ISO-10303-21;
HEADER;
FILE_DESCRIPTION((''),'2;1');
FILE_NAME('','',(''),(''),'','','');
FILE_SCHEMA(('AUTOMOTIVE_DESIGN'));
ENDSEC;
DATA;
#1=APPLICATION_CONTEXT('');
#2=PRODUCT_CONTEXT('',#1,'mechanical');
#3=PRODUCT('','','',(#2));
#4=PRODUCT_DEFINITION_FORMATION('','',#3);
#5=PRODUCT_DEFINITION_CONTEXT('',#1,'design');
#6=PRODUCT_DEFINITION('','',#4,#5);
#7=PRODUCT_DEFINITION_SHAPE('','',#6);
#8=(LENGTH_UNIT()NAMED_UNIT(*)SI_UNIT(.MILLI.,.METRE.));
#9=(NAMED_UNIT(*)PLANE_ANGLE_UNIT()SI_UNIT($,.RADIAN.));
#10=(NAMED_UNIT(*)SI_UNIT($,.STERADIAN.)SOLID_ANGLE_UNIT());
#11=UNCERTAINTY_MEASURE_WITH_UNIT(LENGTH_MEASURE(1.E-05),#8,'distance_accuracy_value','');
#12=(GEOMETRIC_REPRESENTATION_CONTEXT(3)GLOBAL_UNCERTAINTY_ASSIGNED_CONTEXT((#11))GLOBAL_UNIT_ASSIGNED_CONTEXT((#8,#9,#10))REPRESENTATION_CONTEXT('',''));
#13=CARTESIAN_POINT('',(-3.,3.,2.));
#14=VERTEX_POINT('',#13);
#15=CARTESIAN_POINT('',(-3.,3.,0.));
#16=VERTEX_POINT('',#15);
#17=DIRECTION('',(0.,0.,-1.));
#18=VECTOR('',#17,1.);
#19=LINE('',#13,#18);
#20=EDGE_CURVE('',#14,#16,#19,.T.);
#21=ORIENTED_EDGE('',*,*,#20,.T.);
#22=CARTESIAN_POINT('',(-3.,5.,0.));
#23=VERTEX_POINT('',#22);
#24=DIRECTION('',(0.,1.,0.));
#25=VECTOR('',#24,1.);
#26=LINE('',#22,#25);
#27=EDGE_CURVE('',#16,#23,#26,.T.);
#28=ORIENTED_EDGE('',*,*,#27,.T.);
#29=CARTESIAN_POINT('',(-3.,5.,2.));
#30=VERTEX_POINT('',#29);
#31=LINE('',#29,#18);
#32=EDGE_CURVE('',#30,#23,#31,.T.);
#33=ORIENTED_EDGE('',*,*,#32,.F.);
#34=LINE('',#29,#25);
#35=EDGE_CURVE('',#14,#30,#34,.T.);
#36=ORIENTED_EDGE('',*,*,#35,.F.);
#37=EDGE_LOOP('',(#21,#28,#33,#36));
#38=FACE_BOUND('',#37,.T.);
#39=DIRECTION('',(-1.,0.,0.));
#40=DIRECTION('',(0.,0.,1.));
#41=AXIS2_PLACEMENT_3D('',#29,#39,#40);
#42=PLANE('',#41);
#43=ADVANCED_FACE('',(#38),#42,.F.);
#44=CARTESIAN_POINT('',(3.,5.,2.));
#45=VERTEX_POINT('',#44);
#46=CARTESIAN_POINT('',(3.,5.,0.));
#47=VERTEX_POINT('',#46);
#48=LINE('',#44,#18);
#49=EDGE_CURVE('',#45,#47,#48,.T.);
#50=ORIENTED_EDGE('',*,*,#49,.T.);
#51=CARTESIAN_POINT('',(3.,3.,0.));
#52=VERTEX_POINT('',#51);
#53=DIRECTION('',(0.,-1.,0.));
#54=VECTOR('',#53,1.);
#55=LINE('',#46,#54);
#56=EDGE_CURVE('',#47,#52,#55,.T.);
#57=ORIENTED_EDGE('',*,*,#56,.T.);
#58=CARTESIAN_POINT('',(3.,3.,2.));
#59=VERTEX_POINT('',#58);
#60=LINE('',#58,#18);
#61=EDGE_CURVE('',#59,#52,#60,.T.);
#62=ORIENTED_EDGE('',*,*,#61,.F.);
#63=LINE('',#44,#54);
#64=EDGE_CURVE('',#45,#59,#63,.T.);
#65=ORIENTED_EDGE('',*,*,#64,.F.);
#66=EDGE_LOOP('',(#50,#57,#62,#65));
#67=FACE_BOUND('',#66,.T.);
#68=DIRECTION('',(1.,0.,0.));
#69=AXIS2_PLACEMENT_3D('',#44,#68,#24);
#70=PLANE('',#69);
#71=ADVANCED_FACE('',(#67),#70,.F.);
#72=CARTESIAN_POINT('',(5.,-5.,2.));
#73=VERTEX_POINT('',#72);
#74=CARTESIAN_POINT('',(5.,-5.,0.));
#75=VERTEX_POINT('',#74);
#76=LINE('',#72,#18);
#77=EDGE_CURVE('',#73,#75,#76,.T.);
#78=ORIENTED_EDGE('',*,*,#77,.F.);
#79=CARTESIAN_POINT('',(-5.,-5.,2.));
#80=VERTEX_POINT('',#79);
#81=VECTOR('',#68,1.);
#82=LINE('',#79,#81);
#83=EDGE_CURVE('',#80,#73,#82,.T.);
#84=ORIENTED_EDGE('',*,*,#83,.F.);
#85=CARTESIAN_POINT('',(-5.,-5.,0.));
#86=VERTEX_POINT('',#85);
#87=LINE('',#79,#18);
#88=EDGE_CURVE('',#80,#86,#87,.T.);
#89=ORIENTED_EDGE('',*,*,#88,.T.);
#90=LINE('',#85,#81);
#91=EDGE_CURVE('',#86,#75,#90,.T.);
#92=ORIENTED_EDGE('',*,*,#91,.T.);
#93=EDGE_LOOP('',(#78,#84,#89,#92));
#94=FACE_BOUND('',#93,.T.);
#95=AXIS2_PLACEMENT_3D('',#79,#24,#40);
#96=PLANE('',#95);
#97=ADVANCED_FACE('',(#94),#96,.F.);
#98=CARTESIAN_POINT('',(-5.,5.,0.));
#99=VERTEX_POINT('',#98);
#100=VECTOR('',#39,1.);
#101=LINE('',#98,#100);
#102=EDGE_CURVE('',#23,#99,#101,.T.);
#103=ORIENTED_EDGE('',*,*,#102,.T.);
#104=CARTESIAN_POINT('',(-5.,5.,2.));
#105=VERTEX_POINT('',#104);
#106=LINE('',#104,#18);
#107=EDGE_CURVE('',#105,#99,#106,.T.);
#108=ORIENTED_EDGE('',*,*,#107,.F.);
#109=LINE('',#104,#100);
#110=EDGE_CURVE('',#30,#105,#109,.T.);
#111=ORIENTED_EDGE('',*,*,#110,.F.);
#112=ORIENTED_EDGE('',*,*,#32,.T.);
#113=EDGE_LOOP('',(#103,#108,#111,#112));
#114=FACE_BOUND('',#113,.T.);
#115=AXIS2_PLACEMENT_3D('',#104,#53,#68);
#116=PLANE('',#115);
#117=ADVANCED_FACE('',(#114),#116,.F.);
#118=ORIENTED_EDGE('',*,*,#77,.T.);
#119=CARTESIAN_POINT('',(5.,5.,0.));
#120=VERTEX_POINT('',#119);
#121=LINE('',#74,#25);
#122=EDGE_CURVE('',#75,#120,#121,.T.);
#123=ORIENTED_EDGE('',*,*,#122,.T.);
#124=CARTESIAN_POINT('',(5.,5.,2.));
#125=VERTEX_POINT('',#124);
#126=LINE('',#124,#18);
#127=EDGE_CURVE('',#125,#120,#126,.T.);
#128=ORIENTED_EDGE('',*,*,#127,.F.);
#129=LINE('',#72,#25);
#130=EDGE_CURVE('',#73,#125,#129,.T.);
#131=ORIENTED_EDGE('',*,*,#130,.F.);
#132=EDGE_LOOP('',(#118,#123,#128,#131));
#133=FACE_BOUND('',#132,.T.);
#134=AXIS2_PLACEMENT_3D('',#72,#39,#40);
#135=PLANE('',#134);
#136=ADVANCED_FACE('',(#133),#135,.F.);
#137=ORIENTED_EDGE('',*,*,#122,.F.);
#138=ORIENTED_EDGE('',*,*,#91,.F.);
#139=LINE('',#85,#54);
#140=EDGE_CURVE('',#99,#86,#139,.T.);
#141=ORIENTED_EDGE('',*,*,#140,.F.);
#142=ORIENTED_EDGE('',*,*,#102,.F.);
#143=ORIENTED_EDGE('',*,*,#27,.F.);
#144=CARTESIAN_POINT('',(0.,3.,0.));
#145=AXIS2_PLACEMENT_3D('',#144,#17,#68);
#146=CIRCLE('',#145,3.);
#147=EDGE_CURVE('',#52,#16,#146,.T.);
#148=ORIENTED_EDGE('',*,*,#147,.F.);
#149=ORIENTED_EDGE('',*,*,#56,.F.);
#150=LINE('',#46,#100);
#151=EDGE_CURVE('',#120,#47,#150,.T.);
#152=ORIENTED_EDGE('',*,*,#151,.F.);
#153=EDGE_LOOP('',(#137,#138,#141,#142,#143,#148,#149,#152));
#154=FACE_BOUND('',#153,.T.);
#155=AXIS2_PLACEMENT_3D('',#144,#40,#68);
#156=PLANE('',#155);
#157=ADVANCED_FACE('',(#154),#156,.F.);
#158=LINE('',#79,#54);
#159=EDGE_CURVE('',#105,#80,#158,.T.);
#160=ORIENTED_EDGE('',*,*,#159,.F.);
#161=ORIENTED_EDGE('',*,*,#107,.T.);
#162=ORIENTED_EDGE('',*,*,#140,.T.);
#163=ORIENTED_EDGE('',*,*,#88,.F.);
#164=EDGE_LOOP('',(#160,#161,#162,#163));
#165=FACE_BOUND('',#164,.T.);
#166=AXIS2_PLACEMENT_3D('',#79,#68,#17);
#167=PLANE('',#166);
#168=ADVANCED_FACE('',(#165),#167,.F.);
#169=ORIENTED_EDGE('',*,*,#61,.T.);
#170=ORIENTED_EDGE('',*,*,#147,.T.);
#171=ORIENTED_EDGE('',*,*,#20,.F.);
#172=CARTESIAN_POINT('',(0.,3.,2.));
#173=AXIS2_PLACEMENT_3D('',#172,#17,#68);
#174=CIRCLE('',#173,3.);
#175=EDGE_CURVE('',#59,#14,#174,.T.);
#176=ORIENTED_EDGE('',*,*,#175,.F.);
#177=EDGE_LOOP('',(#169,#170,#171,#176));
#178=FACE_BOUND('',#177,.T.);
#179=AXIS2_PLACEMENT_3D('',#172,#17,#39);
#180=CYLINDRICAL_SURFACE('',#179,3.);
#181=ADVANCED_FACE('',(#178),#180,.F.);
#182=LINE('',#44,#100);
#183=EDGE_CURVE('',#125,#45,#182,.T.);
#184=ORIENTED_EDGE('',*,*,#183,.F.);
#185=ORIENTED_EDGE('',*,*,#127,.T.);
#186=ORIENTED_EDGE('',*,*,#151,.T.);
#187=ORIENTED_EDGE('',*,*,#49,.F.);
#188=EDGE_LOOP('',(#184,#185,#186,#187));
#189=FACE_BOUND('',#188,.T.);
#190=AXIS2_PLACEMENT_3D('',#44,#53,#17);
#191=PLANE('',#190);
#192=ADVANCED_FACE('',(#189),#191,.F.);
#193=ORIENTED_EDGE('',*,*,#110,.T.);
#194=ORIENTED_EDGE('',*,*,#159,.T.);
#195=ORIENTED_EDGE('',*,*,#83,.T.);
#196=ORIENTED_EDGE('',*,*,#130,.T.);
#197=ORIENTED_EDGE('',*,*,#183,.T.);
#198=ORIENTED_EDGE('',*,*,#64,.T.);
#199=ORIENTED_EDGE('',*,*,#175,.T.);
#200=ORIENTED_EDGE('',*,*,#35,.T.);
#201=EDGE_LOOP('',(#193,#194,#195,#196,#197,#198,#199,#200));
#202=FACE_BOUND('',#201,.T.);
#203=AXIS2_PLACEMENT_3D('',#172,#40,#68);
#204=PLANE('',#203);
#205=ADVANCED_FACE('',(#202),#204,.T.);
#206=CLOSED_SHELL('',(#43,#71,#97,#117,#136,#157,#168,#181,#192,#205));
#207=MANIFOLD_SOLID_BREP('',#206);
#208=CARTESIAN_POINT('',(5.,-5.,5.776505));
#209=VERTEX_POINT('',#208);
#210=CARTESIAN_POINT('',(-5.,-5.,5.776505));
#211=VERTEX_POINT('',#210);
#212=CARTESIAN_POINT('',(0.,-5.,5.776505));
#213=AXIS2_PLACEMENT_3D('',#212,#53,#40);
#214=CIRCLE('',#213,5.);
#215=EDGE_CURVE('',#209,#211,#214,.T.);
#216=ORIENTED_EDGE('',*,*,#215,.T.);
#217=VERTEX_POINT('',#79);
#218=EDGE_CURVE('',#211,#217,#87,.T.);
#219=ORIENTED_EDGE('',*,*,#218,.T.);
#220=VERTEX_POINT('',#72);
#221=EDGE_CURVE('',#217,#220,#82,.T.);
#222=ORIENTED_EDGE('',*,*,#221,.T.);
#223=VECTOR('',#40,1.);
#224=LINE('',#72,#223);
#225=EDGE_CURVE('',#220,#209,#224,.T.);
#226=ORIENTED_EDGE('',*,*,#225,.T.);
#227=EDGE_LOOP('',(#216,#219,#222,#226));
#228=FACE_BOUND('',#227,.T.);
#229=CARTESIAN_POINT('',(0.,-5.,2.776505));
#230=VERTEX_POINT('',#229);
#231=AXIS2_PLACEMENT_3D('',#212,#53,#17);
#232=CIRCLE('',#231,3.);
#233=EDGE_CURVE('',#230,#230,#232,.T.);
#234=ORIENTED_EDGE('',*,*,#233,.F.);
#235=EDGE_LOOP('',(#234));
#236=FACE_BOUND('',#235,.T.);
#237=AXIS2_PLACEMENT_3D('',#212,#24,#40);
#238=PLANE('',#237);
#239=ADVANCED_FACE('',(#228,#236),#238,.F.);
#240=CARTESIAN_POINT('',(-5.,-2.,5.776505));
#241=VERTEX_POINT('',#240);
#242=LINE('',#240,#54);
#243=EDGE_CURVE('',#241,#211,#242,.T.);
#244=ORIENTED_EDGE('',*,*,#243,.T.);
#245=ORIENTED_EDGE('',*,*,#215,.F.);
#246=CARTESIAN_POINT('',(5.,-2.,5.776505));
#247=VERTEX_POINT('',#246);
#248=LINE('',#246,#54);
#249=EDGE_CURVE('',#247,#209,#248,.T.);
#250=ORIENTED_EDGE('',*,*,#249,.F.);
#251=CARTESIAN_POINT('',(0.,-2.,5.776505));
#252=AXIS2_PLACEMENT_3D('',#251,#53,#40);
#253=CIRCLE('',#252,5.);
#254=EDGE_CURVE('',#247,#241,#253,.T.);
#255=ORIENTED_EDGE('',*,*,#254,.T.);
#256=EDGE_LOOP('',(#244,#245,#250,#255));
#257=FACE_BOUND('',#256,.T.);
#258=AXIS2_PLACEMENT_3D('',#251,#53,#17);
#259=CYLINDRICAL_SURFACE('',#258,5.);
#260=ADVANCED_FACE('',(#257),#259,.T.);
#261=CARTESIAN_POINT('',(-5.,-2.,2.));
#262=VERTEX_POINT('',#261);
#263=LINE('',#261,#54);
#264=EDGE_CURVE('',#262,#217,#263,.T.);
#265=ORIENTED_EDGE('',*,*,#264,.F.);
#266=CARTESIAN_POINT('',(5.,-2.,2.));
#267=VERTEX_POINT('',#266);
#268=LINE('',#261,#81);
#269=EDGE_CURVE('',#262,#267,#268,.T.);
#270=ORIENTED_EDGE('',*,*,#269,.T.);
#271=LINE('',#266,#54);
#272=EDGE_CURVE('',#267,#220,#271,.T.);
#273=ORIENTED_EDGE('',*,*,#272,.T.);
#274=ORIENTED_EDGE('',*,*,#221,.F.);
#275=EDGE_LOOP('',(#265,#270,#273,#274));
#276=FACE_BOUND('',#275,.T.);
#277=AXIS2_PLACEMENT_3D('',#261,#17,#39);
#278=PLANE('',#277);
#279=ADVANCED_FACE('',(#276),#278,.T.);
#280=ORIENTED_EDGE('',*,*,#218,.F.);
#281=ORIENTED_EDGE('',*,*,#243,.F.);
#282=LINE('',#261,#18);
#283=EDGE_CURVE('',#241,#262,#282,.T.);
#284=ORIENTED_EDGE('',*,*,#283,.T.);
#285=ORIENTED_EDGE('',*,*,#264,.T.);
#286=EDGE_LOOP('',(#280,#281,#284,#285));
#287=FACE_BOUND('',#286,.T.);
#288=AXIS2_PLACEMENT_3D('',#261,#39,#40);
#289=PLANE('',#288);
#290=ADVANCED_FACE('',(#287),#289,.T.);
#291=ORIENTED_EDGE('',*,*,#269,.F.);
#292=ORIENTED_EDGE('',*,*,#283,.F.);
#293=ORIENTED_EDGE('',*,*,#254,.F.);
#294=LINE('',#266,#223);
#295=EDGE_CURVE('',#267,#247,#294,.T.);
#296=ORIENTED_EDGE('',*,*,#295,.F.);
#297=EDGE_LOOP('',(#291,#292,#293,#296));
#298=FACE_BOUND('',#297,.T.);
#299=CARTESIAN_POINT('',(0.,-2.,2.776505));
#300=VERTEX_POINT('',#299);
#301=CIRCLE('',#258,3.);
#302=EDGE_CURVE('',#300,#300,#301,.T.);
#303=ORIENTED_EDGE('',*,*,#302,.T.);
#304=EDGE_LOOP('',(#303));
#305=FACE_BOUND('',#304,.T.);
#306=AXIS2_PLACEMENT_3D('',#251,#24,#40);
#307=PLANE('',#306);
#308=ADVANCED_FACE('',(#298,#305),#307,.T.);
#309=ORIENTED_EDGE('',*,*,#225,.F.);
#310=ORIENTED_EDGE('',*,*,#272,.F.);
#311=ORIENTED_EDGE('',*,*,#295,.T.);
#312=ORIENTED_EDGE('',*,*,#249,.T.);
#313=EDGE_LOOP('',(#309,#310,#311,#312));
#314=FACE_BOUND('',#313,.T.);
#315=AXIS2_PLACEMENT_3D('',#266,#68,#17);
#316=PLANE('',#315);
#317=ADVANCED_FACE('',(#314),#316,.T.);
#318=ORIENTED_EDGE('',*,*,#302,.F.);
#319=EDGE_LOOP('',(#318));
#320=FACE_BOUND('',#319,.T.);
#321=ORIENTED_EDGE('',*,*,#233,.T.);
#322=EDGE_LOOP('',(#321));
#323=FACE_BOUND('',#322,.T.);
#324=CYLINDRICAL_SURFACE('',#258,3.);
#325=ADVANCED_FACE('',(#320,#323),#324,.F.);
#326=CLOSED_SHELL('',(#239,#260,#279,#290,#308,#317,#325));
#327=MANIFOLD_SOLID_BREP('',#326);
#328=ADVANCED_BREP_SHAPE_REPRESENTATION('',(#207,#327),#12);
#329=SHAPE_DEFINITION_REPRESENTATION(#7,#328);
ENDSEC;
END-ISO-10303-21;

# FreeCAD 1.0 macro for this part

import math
import FreeCAD as App
import Part
import Sketcher

V = App.Vector

doc = App.newDocument("Part")
body = doc.addObject("PartDesign::Body", "Body")

sketch1 = doc.addObject("Sketcher::SketchObject", "Sketch")
body.addObject(sketch1)
sketch1.AttachmentSupport = (doc.XY_Plane, [""])
sketch1.MapMode = "FlatFace"
sketch1.addGeometry([
    Part.LineSegment(V(-5, -5, 0), V(5, -5, 0)),
    Part.LineSegment(V(5, -5, 0), V(5, 5, 0)),
    Part.LineSegment(V(5, 5, 0), V(3, 5, 0)),
    Part.LineSegment(V(3, 5, 0), V(3, 3, 0)),
    Part.ArcOfCircle(Part.Circle(V(0, 3, 0), V(0, 0, 1), 3), math.radians(180), math.radians(360)),
    Part.LineSegment(V(-3, 3, 0), V(-3, 5, 0)),
    Part.LineSegment(V(-3, 5, 0), V(-5, 5, 0)),
    Part.LineSegment(V(-5, 5, 0), V(-5, -5, 0)),
], False)
sketch1.addConstraint([
    Sketcher.Constraint("Coincident", 0, 2, 1, 1),
    Sketcher.Constraint("Coincident", 1, 2, 2, 1),
    Sketcher.Constraint("Coincident", 2, 2, 3, 1),
    Sketcher.Constraint("Tangent", 3, 2, 4, 2),
    Sketcher.Constraint("Tangent", 4, 1, 5, 1),
    Sketcher.Constraint("Coincident", 5, 2, 6, 1),
    Sketcher.Constraint("Coincident", 6, 2, 7, 1),
    Sketcher.Constraint("Coincident", 7, 2, 0, 1),
    Sketcher.Constraint("Horizontal", 0),
    Sketcher.Constraint("Vertical", 1),
    Sketcher.Constraint("Horizontal", 2),
    Sketcher.Constraint("Vertical", 3),
    Sketcher.Constraint("Vertical", 5),
    Sketcher.Constraint("Horizontal", 6),
    Sketcher.Constraint("Vertical", 7),
    Sketcher.Constraint("Symmetric", 0, 2, 6, 2, -1, 1),
    Sketcher.Constraint("Symmetric", 2, 2, 5, 2, -2),
    Sketcher.Constraint("Equal", 0, 1),
    Sketcher.Constraint("Equal", 6, 3),
    Sketcher.Constraint("Radius", 4, 3.0),
    Sketcher.Constraint("DistanceX", 0, 1, 0, 2, 10.0),
])
pad1 = doc.addObject("PartDesign::Pad", "Pad")
body.addObject(pad1)
pad1.Profile = sketch1
pad1.Length = 2
body2 = doc.addObject("PartDesign::Body", "Body001")

sketch2 = doc.addObject("Sketcher::SketchObject", "Sketch001")
body2.addObject(sketch2)
sketch2.AttachmentSupport = (doc.getObject("XZ_Plane001"), [""])
sketch2.MapMode = "FlatFace"
sketch2.AttachmentOffset = App.Placement(V(0, 0, 5), App.Rotation())
sketch2.addGeometry([
    Part.LineSegment(V(-5, 2, 0), V(5, 2, 0)),
    Part.LineSegment(V(5, 2, 0), V(5, 5.8, 0)),
    Part.ArcOfCircle(Part.Circle(V(0, 5.8, 0), V(0, 0, 1), 5), math.radians(0), math.radians(180)),
    Part.LineSegment(V(-5, 5.8, 0), V(-5, 2, 0)),
    Part.Circle(V(0, 5.8, 0), V(0, 0, 1), 3),
], False)
sketch2.addConstraint([
    Sketcher.Constraint("Coincident", 0, 2, 1, 1),
    Sketcher.Constraint("Tangent", 1, 2, 2, 1),
    Sketcher.Constraint("Tangent", 2, 2, 3, 1),
    Sketcher.Constraint("Coincident", 3, 2, 0, 1),
    Sketcher.Constraint("Horizontal", 0),
    Sketcher.Constraint("Vertical", 1),
    Sketcher.Constraint("Vertical", 3),
    Sketcher.Constraint("Coincident", 4, 3, 2, 3),
    Sketcher.Constraint("PointOnObject", 2, 3, -2),
    Sketcher.Constraint("Diameter", 4, 6.0),
    Sketcher.Constraint("Radius", 2, 5.0),
    Sketcher.Constraint("DistanceY", -1, 1, 0, 2, 2.0),
    Sketcher.Constraint("DistanceY", 1, 1, 1, 2, 3.776505),
])
pad2 = doc.addObject("PartDesign::Pad", "Pad001")
body2.addObject(pad2)
pad2.Profile = sketch2
pad2.Length = 3
pad2.Reversed = True

doc.recompute()
